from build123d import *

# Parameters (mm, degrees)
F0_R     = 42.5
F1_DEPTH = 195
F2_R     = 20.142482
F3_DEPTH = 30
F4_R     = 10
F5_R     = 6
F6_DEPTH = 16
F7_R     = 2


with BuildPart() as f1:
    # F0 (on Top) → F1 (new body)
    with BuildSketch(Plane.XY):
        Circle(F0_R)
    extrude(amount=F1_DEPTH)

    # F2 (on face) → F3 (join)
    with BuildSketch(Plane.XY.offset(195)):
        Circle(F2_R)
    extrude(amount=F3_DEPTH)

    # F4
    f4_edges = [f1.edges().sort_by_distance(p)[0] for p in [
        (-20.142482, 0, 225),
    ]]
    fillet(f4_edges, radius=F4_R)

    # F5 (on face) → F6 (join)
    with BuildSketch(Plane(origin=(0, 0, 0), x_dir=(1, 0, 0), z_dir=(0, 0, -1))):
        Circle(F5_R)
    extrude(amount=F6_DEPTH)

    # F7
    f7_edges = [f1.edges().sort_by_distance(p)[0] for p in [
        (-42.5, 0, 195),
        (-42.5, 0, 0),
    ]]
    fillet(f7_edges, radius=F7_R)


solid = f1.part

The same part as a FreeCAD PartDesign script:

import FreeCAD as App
import Part
import Sketcher

V = App.Vector


def edges_at(feature, points):
    """Names of the edges that pass closest to the given points."""
    edges = feature.Shape.Edges
    near = lambda p: min(range(len(edges)), key=lambda i: edges[i].distToShape(Part.Vertex(*p))[0])
    return sorted({f"Edge{near(p) + 1}" for p in points})

doc = App.newDocument("Part")
params = doc.addObject("Spreadsheet::Sheet", "Params")
for row, (alias, value) in enumerate([
    ("sketch1_diameter", "85 mm"),
    ("pad1_length", "195 mm"),
    ("pad2_length", "30 mm"),
    ("fillet_radius", "10 mm"),
    ("sketch3_diameter", "12 mm"),
    ("pad3_length", "16 mm"),
    ("fillet2_radius", "2 mm"),
], start=1):
    params.set(f"A{row}", alias)
    params.set(f"B{row}", "=" + value)
    params.setAlias(f"B{row}", alias)

body = doc.addObject("PartDesign::Body", "Body")

sketch1 = doc.addObject("Sketcher::SketchObject", "Sketch")
body.addObject(sketch1)
sketch1.AttachmentSupport = (doc.XY_Plane, [""])
sketch1.MapMode = "FlatFace"
sketch1.addGeometry(Part.Circle(V(0, 0, 0), V(0, 0, 1), 42), False)
sketch1.addConstraint([
    Sketcher.Constraint("Coincident", 0, 3, -1, 1),
    Sketcher.Constraint("Diameter", 0, 85.0),
])
sketch1.setExpression("Constraints[1]", "Params.sketch1_diameter")
pad1 = doc.addObject("PartDesign::Pad", "Pad")
body.addObject(pad1)
pad1.Profile = sketch1
pad1.setExpression("Length", "Params.pad1_length")

sketch2 = doc.addObject("Sketcher::SketchObject", "Sketch001")
body.addObject(sketch2)
sketch2.AttachmentSupport = (doc.XY_Plane, [""])
sketch2.MapMode = "FlatFace"
sketch2.AttachmentOffset = App.Placement(V(0, 0, 195), App.Rotation())
sketch2.addGeometry(Part.Circle(V(0, 0, 0), V(0, 0, 1), 20), False)
sketch2.addConstraint([
    Sketcher.Constraint("Coincident", 0, 3, -1, 1),
    Sketcher.Constraint("Diameter", 0, 40.284964),
])
pad2 = doc.addObject("PartDesign::Pad", "Pad001")
body.addObject(pad2)
pad2.Profile = sketch2
pad2.setExpression("Length", "Params.pad2_length")
doc.recompute()

fillet = doc.addObject("PartDesign::Fillet", "Fillet")
body.addObject(fillet)
fillet.Base = (pad2, edges_at(pad2, [(-20.142, 0, 225)]))
fillet.setExpression("Radius", "Params.fillet_radius")

sketch3 = doc.addObject("Sketcher::SketchObject", "Sketch002")
body.addObject(sketch3)
sketch3.AttachmentSupport = (doc.XY_Plane, [""])
sketch3.MapMode = "FlatFace"
sketch3.addGeometry(Part.Circle(V(0, 0, 0), V(0, 0, 1), 6), False)
sketch3.addConstraint([
    Sketcher.Constraint("Coincident", 0, 3, -1, 1),
    Sketcher.Constraint("Diameter", 0, 12.0),
])
sketch3.setExpression("Constraints[1]", "Params.sketch3_diameter")
pad3 = doc.addObject("PartDesign::Pad", "Pad002")
body.addObject(pad3)
pad3.Profile = sketch3
pad3.setExpression("Length", "Params.pad3_length")
pad3.Reversed = True
doc.recompute()

fillet2 = doc.addObject("PartDesign::Fillet", "Fillet001")
body.addObject(fillet2)
fillet2.Base = (pad3, edges_at(pad3, [(-42.5, 0, 195), (-42.5, 0, 0)]))
fillet2.setExpression("Radius", "Params.fillet2_radius")

doc.recompute()
